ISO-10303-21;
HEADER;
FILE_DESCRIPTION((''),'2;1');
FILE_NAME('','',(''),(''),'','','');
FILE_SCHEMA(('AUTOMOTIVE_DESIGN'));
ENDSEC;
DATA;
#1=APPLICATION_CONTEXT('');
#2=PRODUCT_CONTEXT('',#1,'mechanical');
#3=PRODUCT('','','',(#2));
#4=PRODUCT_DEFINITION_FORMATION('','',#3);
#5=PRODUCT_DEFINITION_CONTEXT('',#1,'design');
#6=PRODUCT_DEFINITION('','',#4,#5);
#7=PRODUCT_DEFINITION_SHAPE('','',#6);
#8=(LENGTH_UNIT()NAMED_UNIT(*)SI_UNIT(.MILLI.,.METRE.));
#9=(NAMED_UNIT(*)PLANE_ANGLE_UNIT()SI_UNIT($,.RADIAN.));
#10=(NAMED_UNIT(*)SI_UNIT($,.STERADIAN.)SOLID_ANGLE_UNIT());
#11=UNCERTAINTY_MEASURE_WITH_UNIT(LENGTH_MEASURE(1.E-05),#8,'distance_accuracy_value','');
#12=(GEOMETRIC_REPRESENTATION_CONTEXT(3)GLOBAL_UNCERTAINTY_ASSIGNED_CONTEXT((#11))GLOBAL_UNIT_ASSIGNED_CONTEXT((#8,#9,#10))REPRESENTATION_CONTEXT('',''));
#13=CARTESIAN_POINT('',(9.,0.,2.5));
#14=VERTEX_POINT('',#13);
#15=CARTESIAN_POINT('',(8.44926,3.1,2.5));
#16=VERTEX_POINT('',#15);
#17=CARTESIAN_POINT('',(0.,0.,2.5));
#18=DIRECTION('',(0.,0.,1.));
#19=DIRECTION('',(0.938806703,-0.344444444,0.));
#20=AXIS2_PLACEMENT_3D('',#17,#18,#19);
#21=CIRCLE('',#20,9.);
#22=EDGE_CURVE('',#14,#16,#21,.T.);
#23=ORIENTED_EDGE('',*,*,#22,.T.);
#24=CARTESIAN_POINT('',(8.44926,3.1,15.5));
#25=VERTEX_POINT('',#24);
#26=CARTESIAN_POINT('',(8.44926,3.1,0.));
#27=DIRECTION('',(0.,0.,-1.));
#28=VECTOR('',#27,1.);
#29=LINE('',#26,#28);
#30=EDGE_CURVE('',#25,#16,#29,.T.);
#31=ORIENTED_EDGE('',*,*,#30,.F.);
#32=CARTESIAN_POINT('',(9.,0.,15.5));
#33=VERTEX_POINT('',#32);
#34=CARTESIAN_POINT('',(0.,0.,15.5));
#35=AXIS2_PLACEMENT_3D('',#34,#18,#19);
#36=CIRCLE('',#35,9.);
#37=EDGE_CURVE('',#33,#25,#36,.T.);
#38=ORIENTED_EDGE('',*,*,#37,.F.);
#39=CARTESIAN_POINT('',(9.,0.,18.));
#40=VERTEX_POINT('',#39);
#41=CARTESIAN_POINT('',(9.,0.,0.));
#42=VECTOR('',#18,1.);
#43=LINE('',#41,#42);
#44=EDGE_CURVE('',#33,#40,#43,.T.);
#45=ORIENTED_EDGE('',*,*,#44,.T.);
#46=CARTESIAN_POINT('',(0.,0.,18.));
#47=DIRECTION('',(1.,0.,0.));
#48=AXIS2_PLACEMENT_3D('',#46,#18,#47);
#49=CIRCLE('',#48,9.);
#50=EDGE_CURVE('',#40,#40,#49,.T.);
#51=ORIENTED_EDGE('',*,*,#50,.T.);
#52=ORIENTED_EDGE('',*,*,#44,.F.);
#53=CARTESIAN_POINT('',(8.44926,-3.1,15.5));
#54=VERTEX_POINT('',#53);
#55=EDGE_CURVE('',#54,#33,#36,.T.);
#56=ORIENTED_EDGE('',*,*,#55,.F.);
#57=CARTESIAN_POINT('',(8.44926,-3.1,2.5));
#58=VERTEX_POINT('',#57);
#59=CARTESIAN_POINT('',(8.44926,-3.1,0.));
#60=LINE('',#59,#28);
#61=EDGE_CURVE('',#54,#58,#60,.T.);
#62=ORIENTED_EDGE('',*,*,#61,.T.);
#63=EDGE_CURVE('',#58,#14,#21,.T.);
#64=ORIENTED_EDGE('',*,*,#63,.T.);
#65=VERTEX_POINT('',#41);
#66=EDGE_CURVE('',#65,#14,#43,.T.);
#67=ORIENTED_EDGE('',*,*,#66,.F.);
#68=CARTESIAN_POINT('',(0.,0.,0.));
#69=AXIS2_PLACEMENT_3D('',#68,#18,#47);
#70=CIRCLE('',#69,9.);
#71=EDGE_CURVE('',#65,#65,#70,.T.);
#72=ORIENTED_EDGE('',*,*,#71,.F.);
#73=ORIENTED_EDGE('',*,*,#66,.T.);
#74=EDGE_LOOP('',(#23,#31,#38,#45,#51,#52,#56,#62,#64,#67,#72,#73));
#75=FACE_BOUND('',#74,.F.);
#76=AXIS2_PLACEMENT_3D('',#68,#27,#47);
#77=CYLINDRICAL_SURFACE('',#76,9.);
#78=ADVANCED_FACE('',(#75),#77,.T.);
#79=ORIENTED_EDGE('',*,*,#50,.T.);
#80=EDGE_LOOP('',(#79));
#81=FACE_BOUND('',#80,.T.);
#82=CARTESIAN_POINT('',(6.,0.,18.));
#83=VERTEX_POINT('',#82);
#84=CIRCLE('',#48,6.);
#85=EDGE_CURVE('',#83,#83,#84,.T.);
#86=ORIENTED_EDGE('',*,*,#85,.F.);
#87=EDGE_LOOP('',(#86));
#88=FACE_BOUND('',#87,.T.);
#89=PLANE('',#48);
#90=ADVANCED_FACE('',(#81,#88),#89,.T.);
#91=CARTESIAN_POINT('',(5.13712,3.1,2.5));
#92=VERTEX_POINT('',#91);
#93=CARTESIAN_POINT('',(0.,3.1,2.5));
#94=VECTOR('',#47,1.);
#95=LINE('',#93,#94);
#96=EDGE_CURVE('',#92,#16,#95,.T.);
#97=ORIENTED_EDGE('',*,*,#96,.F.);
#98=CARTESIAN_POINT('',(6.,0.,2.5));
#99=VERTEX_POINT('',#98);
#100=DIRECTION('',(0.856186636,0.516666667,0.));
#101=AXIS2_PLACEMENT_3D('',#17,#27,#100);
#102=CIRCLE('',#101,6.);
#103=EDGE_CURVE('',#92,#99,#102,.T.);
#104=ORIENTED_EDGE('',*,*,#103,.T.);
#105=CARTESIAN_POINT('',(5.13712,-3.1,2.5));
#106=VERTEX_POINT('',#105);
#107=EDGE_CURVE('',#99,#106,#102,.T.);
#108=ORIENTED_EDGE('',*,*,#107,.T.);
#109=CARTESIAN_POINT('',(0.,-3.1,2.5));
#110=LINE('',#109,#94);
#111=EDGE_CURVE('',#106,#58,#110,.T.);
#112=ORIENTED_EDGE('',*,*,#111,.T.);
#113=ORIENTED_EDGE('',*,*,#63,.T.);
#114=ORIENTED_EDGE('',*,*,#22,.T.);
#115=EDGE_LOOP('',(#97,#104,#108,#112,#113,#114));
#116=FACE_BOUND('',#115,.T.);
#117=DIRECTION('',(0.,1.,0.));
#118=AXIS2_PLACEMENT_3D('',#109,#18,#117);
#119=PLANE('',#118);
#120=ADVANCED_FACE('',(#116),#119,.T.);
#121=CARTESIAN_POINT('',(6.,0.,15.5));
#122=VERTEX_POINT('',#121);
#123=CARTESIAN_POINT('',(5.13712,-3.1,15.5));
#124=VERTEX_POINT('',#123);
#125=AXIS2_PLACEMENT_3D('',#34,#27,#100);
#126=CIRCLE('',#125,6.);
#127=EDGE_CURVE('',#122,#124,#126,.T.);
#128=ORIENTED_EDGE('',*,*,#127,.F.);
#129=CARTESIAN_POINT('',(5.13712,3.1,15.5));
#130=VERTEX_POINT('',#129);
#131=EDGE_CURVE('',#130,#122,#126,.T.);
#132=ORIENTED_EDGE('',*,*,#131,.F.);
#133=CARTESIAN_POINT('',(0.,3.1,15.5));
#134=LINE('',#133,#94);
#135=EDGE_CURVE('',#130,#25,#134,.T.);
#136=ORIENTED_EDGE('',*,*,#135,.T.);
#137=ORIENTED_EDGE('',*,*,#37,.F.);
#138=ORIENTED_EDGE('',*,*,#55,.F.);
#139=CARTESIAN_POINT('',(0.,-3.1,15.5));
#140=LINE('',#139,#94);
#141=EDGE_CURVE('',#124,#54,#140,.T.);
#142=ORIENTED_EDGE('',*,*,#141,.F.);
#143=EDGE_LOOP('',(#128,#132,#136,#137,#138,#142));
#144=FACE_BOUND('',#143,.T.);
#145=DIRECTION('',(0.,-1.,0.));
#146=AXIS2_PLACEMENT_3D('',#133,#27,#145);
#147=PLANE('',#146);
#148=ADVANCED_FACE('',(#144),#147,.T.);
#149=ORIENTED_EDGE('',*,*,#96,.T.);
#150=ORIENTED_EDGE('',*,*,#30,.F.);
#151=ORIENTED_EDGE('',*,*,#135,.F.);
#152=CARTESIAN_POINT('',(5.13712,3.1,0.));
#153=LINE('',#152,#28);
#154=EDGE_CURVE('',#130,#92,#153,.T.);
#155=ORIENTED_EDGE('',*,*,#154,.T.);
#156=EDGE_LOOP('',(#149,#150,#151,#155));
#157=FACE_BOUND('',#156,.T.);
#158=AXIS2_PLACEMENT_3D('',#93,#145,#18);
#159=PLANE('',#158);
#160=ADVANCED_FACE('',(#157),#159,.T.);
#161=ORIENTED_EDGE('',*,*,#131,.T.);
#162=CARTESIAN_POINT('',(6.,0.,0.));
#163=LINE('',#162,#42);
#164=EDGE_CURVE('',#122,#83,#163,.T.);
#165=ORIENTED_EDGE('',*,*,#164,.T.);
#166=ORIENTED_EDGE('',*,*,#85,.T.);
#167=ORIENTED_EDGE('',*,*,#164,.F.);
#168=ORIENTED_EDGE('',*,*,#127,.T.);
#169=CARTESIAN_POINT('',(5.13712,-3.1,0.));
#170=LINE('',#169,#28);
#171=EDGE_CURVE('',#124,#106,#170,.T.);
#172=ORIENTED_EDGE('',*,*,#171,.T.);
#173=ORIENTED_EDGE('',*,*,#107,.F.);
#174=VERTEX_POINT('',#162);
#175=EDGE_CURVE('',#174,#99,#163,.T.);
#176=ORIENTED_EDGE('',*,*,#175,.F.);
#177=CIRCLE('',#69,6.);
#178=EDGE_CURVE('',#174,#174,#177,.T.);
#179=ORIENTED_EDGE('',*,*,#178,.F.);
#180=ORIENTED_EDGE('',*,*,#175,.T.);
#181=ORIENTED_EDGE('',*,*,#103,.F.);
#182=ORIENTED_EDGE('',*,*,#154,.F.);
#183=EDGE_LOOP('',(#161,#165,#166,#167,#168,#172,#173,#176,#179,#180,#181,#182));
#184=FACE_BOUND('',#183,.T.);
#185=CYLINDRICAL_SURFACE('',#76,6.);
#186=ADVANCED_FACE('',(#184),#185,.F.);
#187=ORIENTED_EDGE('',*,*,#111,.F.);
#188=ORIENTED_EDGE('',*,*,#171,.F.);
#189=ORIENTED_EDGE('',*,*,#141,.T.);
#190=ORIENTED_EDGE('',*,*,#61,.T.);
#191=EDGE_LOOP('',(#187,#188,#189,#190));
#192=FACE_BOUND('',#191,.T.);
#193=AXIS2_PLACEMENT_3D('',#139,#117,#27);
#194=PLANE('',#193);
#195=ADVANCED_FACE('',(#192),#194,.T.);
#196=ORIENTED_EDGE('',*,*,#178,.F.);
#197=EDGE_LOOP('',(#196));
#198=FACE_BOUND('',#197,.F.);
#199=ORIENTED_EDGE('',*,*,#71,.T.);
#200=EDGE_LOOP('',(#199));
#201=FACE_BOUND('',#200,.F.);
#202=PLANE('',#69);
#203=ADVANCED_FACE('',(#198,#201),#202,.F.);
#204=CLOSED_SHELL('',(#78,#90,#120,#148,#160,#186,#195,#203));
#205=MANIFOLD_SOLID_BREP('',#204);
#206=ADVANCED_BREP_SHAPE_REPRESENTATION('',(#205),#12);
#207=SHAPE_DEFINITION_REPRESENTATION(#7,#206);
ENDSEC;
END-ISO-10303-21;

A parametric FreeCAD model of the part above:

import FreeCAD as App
import Part
import Sketcher
Q = App.Units.Quantity


def add_polygon(sketch, points):
    """Adds a closed chain of lines whose ends are joined by coincident constraints."""
    first, n = sketch.GeometryCount, len(points)
    for a, b in zip(points, points[1:] + points[:1]):
        sketch.addGeometry(Part.LineSegment(App.Vector(*a, 0), App.Vector(*b, 0)), False)
    for i in range(n):
        sketch.addConstraint(Sketcher.Constraint("Coincident", first + i, 2, first + (i + 1) % n, 1))

doc = App.newDocument("Part")
body = doc.addObject("PartDesign::Body", "Body")

sketch1 = doc.addObject("Sketcher::SketchObject", "Sketch")
body.addObject(sketch1)
sketch1.AttachmentSupport = (doc.XY_Plane, [""])
sketch1.MapMode = "FlatFace"
sketch1.addGeometry([
    Part.Circle(App.Vector(0, 0, 0), App.Vector(0, 0, 1), 9),
    Part.Circle(App.Vector(0, 0, 0), App.Vector(0, 0, 1), 6),
], False)
sketch1.addConstraint([
    Sketcher.Constraint("Coincident", 0, 3, -1, 1),
    Sketcher.Constraint("Coincident", 1, 3, -1, 1),
    Sketcher.Constraint("Diameter", 0, Q("18 mm")),
    Sketcher.Constraint("Diameter", 1, Q("12 mm")),
])
pad1 = doc.addObject("PartDesign::Pad", "Pad")
body.addObject(pad1)
pad1.Profile = sketch1
pad1.Length = 18

sketch2 = doc.addObject("Sketcher::SketchObject", "Sketch001")
body.addObject(sketch2)
sketch2.AttachmentSupport = (doc.YZ_Plane, [""])
sketch2.MapMode = "FlatFace"
add_polygon(sketch2, [(-3, 16), (3, 16), (3, 2), (-3, 2)])
sketch2.addConstraint([
    Sketcher.Constraint("Horizontal", 0),
    Sketcher.Constraint("Vertical", 1),
    Sketcher.Constraint("Horizontal", 2),
    Sketcher.Constraint("Vertical", 3),
    Sketcher.Constraint("DistanceX", -1, 1, 0, 2, Q("3.1 mm")),
    Sketcher.Constraint("DistanceX", 2, 2, -1, 1, Q("3.1 mm")),
    Sketcher.Constraint("DistanceY", 1, 2, 1, 1, Q("13 mm")),
    Sketcher.Constraint("DistanceY", -1, 1, 0, 2, Q("15.5 mm")),
])
pocket1 = doc.addObject("PartDesign::Pocket", "Pocket")
body.addObject(pocket1)
pocket1.Profile = sketch2
pocket1.Length = 9
pocket1.Reversed = True

doc.recompute()
